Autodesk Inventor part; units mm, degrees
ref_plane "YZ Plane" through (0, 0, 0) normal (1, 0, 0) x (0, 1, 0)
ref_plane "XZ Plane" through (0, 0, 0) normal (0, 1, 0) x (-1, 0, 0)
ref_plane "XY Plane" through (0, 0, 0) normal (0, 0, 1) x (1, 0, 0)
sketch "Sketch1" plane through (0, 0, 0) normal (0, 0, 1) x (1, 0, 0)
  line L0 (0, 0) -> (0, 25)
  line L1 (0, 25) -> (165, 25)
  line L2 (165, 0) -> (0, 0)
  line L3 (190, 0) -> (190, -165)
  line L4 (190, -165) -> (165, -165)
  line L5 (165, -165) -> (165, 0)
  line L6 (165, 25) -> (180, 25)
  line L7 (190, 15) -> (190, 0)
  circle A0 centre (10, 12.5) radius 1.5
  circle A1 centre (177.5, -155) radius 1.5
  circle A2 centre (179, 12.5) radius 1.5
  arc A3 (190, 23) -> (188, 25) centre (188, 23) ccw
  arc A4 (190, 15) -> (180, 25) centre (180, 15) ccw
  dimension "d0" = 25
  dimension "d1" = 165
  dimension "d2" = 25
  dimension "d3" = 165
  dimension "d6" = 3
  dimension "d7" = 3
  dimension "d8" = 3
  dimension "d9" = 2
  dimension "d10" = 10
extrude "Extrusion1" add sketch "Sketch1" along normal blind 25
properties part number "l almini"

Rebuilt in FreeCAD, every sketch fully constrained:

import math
import FreeCAD as App
import Part
import Sketcher
from FreeCAD import Vector
Q = App.Units.Quantity

doc = App.newDocument("Part")
body = doc.addObject("PartDesign::Body", "Body")

# Sketch on XY plane
sketch1 = body.newObject("Sketcher::SketchObject", "Sketch")
sketch1.AttachmentSupport = (doc.getObject("XY_Plane"), [""])
sketch1.MapMode = "FlatFace"
sketch1.addGeometry(Part.LineSegment(Vector(0, 25, 0), Vector(0, 0, 0)), False)
sketch1.addGeometry(Part.LineSegment(Vector(0, 0, 0), Vector(165, 0, 0)), False)
sketch1.addGeometry(Part.LineSegment(Vector(165, 0, 0), Vector(165, -165, 0)), False)
sketch1.addGeometry(Part.LineSegment(Vector(165, -165, 0), Vector(190, -165, 0)), False)
sketch1.addGeometry(Part.LineSegment(Vector(190, -165, 0), Vector(190, 15, 0)), False)
sketch1.addGeometry(Part.ArcOfCircle(Part.Circle(Vector(180, 15, 0), Vector(0, 0, 1), 10), math.radians(0), math.radians(90)), False)
sketch1.addGeometry(Part.LineSegment(Vector(180, 25, 0), Vector(0, 25, 0)), False)
sketch1.addGeometry(Part.Circle(Vector(177.5, -155, 0), Vector(0, 0, 1), 1.5), False)
sketch1.addGeometry(Part.Circle(Vector(10, 12.5, 0), Vector(0, 0, 1), 1.5), False)
sketch1.addGeometry(Part.Circle(Vector(179, 12.5, 0), Vector(0, 0, 1), 1.5), False)
sketch1.addConstraint(Sketcher.Constraint("Coincident", 0, 2, 1, 1))
sketch1.addConstraint(Sketcher.Constraint("Coincident", 1, 2, 2, 1))
sketch1.addConstraint(Sketcher.Constraint("Coincident", 2, 2, 3, 1))
sketch1.addConstraint(Sketcher.Constraint("Coincident", 3, 2, 4, 1))
sketch1.addConstraint(Sketcher.Constraint("Tangent", 4, 2, 5, 1))
sketch1.addConstraint(Sketcher.Constraint("Tangent", 5, 2, 6, 1))
sketch1.addConstraint(Sketcher.Constraint("Coincident", 6, 2, 0, 1))
sketch1.addConstraint(Sketcher.Constraint("Vertical", 0))
sketch1.addConstraint(Sketcher.Constraint("Horizontal", 1))
sketch1.addConstraint(Sketcher.Constraint("Vertical", 2))
sketch1.addConstraint(Sketcher.Constraint("Horizontal", 3))
sketch1.addConstraint(Sketcher.Constraint("Vertical", 4))
sketch1.addConstraint(Sketcher.Constraint("Horizontal", 6))
sketch1.addConstraint(Sketcher.Constraint("Coincident", 0, 2, -1, 1))
sketch1.addConstraint(Sketcher.Constraint("Equal", 7, 8))
sketch1.addConstraint(Sketcher.Constraint("Equal", 8, 9))
sketch1.addConstraint(Sketcher.Constraint("Horizontal", 8, 3, 9, 3))
sketch1.addConstraint(Sketcher.Constraint("Equal", 3, 0))
sketch1.addConstraint(Sketcher.Constraint("Equal", 1, 2))
sketch1.addConstraint(Sketcher.Constraint("Diameter", 7, Q("3 mm")))
sketch1.addConstraint(Sketcher.Constraint("Radius", 5, Q("10 mm")))
sketch1.addConstraint(Sketcher.Constraint("DistanceX", 1, 1, 1, 2, Q("165 mm")))
sketch1.addConstraint(Sketcher.Constraint("DistanceX", 3, 1, 3, 2, Q("25 mm")))
sketch1.addConstraint(Sketcher.Constraint("DistanceX", -1, 1, 8, 3, Q("10 mm")))
sketch1.addConstraint(Sketcher.Constraint("DistanceY", 2, 2, 7, 3, Q("10 mm")))
sketch1.addConstraint(Sketcher.Constraint("DistanceX", -1, 1, 9, 3, Q("179 mm")))
sketch1.addConstraint(Sketcher.Constraint("DistanceX", -1, 1, 7, 3, Q("177.5 mm")))
sketch1.addConstraint(Sketcher.Constraint("DistanceY", -1, 1, 8, 3, Q("12.5 mm")))
pad1 = body.newObject("PartDesign::Pad", "Pad")
pad1.Profile = sketch1
pad1.Length = 25

doc.recompute()
